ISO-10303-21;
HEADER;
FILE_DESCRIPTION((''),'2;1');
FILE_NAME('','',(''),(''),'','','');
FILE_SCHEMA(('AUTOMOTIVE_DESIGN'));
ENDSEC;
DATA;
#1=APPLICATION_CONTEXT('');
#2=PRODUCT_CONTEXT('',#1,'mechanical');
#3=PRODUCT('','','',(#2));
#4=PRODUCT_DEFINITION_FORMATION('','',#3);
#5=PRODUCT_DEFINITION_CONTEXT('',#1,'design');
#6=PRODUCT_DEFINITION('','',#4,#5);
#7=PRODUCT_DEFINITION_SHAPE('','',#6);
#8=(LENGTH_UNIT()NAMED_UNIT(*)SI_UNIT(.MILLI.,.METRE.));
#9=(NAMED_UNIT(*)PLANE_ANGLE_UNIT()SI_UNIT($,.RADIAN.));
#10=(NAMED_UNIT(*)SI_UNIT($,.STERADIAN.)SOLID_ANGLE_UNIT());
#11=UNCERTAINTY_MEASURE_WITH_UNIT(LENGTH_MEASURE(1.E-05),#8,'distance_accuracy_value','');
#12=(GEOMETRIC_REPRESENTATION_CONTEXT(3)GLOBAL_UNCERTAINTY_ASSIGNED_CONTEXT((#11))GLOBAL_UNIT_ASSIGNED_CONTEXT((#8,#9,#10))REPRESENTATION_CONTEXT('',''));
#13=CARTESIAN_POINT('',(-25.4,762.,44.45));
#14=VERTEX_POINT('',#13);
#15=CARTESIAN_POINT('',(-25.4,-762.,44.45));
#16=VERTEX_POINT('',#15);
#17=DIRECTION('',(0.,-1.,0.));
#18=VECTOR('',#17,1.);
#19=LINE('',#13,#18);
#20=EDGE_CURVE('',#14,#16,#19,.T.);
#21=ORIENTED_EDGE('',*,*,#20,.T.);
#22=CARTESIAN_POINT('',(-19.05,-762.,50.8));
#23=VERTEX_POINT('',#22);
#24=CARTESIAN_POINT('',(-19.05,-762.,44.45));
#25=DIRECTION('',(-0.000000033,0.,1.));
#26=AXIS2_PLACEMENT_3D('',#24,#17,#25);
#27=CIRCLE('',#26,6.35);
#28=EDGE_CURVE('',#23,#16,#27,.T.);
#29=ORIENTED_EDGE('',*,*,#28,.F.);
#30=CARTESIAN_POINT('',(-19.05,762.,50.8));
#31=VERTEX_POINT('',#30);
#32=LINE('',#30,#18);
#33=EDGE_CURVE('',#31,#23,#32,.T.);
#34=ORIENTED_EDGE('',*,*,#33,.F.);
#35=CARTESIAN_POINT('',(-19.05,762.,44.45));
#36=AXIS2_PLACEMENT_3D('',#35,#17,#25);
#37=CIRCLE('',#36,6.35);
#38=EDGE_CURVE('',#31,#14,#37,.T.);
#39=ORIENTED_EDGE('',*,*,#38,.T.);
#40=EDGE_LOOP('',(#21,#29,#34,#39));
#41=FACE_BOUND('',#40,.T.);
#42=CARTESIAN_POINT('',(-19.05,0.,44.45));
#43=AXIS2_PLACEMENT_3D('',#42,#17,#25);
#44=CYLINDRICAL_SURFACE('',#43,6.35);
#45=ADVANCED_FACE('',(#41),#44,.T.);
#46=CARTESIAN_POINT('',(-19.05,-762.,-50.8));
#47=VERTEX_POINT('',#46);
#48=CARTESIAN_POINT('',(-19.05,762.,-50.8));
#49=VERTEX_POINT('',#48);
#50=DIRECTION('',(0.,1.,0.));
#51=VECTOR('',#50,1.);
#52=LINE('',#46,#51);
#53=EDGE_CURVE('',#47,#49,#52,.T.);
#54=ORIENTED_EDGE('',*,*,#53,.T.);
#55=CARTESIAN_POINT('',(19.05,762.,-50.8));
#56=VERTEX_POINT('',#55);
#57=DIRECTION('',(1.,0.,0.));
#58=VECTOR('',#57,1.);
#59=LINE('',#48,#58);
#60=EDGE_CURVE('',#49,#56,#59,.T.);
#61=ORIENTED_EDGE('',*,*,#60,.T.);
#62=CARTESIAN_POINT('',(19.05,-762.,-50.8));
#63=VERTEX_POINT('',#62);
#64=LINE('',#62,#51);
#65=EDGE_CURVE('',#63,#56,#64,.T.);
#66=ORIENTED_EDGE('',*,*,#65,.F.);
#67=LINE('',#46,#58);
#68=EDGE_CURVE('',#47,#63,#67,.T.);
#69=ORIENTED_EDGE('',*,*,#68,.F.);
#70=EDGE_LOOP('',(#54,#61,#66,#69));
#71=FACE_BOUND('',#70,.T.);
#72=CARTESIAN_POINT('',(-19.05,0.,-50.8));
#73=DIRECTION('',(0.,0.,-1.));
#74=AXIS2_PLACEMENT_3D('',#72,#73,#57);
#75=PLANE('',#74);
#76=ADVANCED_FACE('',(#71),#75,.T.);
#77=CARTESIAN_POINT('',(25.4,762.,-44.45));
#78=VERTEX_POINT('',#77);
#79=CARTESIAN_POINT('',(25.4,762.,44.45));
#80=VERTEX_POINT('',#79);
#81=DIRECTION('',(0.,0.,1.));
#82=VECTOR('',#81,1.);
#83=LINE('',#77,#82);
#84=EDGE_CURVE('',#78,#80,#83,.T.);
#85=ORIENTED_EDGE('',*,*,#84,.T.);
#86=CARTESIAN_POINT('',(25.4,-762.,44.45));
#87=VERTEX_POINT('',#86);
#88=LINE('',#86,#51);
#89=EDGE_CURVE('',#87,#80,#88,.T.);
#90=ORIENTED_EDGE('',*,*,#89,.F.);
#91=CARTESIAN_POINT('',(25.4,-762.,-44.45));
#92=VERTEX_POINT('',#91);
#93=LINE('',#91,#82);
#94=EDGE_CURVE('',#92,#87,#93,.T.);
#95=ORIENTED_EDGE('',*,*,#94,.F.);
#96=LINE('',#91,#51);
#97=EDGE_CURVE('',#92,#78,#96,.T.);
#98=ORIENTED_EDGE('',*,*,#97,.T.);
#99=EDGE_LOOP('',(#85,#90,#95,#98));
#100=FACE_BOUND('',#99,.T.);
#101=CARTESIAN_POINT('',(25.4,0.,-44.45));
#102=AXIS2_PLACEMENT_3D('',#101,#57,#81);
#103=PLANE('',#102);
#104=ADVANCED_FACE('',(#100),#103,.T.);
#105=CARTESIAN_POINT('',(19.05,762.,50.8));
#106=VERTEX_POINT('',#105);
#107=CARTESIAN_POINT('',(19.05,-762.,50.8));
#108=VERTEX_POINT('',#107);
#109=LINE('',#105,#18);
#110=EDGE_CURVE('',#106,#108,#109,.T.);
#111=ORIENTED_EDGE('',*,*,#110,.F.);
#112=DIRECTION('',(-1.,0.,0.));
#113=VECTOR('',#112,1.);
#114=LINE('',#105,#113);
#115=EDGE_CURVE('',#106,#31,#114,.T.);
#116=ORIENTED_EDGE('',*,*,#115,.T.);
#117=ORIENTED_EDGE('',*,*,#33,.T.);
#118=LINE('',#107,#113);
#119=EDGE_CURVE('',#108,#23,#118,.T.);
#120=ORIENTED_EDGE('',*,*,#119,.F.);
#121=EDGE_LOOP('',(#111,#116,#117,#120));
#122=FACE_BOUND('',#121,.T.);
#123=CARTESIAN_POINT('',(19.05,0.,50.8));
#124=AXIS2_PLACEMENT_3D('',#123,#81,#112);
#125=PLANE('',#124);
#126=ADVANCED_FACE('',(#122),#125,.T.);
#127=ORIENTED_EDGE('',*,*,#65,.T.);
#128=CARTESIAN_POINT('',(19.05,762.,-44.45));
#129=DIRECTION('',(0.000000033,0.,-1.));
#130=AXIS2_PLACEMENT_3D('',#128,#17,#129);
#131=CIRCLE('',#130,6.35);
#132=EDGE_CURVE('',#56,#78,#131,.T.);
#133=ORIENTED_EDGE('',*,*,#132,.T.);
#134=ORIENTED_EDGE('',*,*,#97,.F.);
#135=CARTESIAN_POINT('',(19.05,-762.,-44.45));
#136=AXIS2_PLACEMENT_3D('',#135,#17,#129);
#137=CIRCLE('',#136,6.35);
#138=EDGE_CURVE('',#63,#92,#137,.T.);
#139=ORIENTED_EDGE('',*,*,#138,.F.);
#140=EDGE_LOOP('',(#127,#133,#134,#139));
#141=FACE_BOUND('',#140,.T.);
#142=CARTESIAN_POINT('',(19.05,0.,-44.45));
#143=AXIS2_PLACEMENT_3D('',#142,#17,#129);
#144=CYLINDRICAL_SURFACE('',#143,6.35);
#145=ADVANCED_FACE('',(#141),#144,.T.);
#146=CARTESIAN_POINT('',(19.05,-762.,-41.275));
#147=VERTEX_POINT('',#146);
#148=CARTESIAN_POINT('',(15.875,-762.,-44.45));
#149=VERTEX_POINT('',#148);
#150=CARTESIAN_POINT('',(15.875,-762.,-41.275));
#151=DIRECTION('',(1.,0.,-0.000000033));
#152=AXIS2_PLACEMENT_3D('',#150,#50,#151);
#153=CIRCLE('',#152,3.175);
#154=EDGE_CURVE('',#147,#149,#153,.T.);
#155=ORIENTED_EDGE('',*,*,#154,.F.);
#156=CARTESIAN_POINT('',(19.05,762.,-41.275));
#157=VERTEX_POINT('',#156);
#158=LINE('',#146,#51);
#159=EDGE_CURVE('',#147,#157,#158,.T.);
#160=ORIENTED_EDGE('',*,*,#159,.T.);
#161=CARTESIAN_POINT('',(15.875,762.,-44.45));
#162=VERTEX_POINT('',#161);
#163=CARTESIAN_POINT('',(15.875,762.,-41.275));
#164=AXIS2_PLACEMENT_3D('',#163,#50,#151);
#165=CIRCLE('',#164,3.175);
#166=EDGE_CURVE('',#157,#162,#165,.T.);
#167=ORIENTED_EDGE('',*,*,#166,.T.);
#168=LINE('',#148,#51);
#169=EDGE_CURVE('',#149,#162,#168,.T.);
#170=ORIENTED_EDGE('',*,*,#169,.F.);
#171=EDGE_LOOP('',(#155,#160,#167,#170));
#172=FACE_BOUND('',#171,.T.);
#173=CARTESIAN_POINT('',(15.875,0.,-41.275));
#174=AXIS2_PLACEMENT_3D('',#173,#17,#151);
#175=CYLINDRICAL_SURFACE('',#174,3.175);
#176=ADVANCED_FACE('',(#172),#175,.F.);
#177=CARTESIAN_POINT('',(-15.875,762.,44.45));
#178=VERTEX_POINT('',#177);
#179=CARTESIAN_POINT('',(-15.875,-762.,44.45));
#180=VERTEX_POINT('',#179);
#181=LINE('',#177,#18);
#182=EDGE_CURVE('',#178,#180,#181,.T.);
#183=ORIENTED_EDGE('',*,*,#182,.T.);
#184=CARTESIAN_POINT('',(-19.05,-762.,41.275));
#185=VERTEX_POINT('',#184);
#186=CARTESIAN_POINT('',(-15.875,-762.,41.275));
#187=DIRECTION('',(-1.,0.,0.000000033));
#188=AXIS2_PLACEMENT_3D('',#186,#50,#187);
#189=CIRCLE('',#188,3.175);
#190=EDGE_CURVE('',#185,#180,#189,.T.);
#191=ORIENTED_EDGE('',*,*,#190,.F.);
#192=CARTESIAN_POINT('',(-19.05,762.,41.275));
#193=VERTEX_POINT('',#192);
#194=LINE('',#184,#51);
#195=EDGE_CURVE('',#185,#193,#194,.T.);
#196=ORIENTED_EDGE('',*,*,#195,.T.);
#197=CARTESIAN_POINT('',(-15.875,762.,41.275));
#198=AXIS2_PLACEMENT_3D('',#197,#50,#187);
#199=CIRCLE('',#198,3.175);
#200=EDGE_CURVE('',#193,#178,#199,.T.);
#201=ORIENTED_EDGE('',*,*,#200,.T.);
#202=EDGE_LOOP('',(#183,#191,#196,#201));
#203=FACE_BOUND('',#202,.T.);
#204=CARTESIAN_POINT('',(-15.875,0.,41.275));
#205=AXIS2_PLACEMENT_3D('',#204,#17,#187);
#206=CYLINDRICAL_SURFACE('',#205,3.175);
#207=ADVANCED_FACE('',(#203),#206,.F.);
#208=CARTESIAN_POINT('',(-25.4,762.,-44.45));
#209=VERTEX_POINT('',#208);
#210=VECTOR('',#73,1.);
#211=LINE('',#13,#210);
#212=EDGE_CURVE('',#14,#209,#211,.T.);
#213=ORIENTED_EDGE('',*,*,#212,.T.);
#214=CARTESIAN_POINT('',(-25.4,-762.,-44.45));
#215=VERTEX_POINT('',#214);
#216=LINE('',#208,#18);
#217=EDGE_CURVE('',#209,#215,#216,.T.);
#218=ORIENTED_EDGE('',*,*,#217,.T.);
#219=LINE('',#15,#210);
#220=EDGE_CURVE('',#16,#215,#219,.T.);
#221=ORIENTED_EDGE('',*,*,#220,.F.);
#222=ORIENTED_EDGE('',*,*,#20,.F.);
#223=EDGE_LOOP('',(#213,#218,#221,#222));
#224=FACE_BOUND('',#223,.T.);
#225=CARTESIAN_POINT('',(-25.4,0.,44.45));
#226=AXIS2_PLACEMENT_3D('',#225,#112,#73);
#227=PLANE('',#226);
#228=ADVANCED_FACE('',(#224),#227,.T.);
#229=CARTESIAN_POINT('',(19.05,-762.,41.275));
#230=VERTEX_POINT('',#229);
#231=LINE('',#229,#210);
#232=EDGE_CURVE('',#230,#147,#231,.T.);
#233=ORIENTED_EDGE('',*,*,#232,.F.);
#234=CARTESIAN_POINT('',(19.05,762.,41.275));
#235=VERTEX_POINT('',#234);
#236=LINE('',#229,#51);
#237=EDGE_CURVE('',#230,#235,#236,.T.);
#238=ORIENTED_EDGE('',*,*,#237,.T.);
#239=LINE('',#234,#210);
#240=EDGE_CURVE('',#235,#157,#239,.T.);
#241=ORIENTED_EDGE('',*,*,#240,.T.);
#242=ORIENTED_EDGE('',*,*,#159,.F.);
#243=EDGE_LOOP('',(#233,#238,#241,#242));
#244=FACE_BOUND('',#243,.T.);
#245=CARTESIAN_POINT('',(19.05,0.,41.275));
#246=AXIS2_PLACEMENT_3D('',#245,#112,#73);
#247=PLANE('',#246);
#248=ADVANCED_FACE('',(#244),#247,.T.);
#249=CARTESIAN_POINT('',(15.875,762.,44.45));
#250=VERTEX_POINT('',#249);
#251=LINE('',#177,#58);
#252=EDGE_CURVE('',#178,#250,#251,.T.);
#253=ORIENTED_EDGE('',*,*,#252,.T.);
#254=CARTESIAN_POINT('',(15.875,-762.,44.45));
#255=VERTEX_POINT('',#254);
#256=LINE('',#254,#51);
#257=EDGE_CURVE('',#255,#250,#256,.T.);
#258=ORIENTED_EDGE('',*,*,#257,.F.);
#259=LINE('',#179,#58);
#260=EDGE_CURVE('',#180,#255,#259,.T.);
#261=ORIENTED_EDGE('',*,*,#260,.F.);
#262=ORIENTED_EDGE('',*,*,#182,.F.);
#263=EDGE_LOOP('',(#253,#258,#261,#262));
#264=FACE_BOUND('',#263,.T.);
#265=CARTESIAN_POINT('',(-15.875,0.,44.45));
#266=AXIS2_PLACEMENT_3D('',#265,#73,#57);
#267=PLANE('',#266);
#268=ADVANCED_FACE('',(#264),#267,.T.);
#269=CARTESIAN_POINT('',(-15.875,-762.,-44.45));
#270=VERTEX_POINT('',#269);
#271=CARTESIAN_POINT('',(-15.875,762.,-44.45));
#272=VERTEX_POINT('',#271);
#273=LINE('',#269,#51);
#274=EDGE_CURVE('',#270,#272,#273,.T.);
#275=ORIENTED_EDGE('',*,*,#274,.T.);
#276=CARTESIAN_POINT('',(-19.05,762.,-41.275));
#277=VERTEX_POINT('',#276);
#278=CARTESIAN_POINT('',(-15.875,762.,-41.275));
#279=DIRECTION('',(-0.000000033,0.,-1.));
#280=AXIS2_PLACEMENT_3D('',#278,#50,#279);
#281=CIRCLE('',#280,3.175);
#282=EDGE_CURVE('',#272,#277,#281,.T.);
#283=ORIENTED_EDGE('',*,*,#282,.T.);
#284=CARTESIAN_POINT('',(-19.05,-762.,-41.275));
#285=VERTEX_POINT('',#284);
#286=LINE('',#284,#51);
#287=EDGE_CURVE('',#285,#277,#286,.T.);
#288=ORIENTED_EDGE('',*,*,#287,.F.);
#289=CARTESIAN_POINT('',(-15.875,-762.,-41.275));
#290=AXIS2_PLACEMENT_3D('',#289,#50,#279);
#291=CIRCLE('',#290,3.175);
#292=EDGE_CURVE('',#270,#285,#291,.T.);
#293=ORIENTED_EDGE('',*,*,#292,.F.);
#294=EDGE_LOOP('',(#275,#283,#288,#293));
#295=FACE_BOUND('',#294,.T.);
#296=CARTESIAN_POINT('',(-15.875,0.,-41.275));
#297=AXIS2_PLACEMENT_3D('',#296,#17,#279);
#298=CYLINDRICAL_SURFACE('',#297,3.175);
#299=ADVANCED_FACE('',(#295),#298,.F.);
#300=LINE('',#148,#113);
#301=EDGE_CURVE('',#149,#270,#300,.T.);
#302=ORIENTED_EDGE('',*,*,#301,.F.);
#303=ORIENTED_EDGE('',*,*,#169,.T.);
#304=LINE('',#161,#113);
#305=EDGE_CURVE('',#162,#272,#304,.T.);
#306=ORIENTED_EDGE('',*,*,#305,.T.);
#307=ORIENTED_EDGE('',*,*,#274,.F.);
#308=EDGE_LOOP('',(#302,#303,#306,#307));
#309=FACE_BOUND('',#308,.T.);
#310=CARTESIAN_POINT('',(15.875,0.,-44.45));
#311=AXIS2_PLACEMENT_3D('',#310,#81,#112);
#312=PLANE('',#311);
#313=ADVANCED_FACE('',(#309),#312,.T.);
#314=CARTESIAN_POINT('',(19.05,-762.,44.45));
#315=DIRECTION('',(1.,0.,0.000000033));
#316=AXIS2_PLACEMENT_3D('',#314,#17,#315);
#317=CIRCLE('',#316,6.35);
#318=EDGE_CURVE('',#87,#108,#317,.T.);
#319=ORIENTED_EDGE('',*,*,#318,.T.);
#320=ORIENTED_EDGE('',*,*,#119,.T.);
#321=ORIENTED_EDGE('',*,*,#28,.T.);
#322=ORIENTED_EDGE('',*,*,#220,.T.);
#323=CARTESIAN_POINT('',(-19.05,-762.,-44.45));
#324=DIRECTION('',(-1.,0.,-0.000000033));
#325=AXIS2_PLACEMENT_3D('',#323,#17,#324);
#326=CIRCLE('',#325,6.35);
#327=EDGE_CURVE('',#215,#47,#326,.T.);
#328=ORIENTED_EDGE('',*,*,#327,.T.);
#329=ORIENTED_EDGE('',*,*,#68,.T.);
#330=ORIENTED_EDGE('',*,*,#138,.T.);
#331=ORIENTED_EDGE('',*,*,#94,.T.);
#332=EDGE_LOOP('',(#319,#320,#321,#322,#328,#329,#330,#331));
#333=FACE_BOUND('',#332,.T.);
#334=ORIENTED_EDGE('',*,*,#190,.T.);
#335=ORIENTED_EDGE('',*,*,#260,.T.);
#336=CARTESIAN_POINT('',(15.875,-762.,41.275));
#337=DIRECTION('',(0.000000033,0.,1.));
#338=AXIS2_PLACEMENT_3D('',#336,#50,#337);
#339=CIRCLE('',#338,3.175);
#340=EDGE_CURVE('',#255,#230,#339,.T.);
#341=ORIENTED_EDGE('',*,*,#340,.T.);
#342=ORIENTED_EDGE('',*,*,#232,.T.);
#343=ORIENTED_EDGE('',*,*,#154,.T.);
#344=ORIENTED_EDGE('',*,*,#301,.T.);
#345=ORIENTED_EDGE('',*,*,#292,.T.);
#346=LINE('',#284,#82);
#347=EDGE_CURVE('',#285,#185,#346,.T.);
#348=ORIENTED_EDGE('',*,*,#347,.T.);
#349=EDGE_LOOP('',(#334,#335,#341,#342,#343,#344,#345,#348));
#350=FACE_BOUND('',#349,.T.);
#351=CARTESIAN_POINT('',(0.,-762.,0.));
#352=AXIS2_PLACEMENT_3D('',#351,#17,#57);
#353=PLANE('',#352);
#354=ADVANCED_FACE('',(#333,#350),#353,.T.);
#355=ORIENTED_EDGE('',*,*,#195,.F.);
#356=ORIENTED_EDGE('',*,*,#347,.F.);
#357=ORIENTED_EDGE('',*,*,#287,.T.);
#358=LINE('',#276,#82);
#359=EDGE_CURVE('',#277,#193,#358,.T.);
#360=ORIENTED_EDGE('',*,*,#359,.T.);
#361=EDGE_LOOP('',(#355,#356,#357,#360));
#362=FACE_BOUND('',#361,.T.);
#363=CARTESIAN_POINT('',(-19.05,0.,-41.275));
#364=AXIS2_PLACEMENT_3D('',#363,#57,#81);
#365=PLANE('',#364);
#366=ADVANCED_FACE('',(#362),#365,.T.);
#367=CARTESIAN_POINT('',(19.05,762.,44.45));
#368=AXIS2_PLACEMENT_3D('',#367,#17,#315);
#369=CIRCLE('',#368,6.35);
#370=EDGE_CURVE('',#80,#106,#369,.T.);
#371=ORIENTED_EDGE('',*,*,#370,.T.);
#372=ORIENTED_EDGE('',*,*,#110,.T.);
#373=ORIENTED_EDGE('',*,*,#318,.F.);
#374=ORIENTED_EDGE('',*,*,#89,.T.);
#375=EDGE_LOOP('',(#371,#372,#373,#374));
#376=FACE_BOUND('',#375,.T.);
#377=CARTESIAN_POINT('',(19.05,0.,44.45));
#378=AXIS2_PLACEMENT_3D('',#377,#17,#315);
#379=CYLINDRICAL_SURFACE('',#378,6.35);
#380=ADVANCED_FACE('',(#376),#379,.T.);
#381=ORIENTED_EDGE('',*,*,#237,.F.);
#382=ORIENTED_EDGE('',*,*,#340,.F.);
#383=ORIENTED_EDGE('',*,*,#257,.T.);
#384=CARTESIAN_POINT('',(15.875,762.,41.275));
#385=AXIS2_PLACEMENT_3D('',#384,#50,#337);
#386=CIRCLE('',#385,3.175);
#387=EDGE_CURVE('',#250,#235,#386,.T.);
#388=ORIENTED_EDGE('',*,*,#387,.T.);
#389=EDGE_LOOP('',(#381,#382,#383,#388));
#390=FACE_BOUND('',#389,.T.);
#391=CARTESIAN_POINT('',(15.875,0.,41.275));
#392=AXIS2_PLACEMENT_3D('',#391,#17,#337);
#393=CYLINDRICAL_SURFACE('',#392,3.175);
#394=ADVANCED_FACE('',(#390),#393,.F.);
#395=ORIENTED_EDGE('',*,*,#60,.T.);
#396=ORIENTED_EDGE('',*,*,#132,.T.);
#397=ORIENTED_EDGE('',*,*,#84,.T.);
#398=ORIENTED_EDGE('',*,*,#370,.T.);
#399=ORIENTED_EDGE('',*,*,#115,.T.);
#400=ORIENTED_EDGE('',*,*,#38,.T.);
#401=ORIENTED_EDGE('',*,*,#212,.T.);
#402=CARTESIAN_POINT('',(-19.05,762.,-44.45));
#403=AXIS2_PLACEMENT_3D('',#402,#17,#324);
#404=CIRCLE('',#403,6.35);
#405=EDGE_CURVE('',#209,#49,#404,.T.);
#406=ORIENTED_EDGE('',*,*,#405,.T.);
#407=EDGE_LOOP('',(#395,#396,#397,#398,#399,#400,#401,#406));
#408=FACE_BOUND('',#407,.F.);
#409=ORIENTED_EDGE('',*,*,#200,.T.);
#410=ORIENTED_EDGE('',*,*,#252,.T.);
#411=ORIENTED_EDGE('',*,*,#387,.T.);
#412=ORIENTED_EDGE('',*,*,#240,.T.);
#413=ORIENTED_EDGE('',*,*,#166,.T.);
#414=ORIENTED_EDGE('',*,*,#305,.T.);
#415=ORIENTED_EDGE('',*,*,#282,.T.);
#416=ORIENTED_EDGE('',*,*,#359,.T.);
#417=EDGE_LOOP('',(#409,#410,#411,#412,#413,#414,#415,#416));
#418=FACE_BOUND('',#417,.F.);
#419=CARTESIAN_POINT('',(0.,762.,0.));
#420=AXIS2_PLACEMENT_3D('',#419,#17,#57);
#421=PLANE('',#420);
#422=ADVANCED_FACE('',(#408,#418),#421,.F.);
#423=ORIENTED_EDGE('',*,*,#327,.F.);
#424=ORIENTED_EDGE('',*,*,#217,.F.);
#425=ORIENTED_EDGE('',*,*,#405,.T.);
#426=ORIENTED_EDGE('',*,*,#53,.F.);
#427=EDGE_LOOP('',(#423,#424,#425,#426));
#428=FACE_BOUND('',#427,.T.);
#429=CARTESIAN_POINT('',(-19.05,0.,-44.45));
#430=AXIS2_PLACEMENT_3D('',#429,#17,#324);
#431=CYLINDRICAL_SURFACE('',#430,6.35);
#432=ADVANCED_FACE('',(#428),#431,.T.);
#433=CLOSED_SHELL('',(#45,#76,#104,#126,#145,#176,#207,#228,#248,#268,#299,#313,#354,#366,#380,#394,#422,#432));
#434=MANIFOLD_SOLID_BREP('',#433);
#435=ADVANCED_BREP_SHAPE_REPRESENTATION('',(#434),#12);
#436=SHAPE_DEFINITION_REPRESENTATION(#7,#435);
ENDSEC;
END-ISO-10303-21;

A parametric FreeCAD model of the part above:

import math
import FreeCAD as App
import Part
import Sketcher

V = App.Vector
Q = App.Units.Quantity

doc = App.newDocument("Part")
params = doc.addObject("Spreadsheet::Sheet", "Params")
for row, (alias, value) in enumerate([
    ("sketch1_radius", "0.25 in"),
    ("sketch1_width", "1.5 in"),
    ("sketch1_height", "3.5 in"),
    ("sketch1_radius2", "0.125 in"),
    ("pad1_length", "60 in"),
], start=1):
    params.set(f"A{row}", alias)
    params.set(f"B{row}", "=" + value)
    params.setAlias(f"B{row}", alias)

body = doc.addObject("PartDesign::Body", "Body")

# Sketch on XZ plane
sketch1 = body.newObject("Sketcher::SketchObject", "Sketch")
sketch1.AttachmentSupport = (doc.getObject("XZ_Plane"), [""])
sketch1.MapMode = "FlatFace"
sketch1.addGeometry(Part.ArcOfCircle(Part.Circle(V(19, 44.4, 0), V(0, 0, 1), 6.4), math.radians(0), math.radians(90)), False)
sketch1.addGeometry(Part.LineSegment(V(19.1, 50.8, 0), V(-19.1, 50.8, 0)), False)
sketch1.addGeometry(Part.ArcOfCircle(Part.Circle(V(-19, 44.4, 0), V(0, 0, 1), 6.4), math.radians(90), math.radians(180)), False)
sketch1.addGeometry(Part.LineSegment(V(-25.4, 44.5, 0), V(-25.4, -44.5, 0)), False)
sketch1.addGeometry(Part.ArcOfCircle(Part.Circle(V(-19, -44.4, 0), V(0, 0, 1), 6.4), math.radians(-180), math.radians(-90)), False)
sketch1.addGeometry(Part.LineSegment(V(-19.1, -50.8, 0), V(19.1, -50.8, 0)), False)
sketch1.addGeometry(Part.ArcOfCircle(Part.Circle(V(19, -44.4, 0), V(0, 0, 1), 6.4), math.radians(-90), math.radians(0)), False)
sketch1.addGeometry(Part.LineSegment(V(25.4, -44.5, 0), V(25.4, 44.5, 0)), False)
sketch1.addGeometry(Part.ArcOfCircle(Part.Circle(V(-15.9, 41.3, 0), V(0, 0, 1), 3.2), math.radians(90), math.radians(180)), False)
sketch1.addGeometry(Part.LineSegment(V(-15.9, 44.5, 0), V(15.9, 44.5, 0)), False)
sketch1.addGeometry(Part.ArcOfCircle(Part.Circle(V(15.9, 41.3, 0), V(0, 0, 1), 3.2), math.radians(0), math.radians(90)), False)
sketch1.addGeometry(Part.LineSegment(V(19.1, 41.3, 0), V(19.1, -41.3, 0)), False)
sketch1.addGeometry(Part.ArcOfCircle(Part.Circle(V(15.9, -41.3, 0), V(0, 0, 1), 3.2), math.radians(-90), math.radians(0)), False)
sketch1.addGeometry(Part.LineSegment(V(15.9, -44.5, 0), V(-15.9, -44.5, 0)), False)
sketch1.addGeometry(Part.ArcOfCircle(Part.Circle(V(-15.9, -41.3, 0), V(0, 0, 1), 3.2), math.radians(-180), math.radians(-90)), False)
sketch1.addGeometry(Part.LineSegment(V(-19.1, -41.3, 0), V(-19.1, 41.3, 0)), False)
sketch1.addConstraint(Sketcher.Constraint("Tangent", 0, 2, 1, 1))
sketch1.addConstraint(Sketcher.Constraint("Tangent", 1, 2, 2, 1))
sketch1.addConstraint(Sketcher.Constraint("Tangent", 2, 2, 3, 1))
sketch1.addConstraint(Sketcher.Constraint("Tangent", 3, 2, 4, 1))
sketch1.addConstraint(Sketcher.Constraint("Tangent", 4, 2, 5, 1))
sketch1.addConstraint(Sketcher.Constraint("Tangent", 5, 2, 6, 1))
sketch1.addConstraint(Sketcher.Constraint("Tangent", 6, 2, 7, 1))
sketch1.addConstraint(Sketcher.Constraint("Tangent", 7, 2, 0, 1))
sketch1.addConstraint(Sketcher.Constraint("Tangent", 8, 1, 9, 1))
sketch1.addConstraint(Sketcher.Constraint("Tangent", 9, 2, 10, 2))
sketch1.addConstraint(Sketcher.Constraint("Tangent", 10, 1, 11, 1))
sketch1.addConstraint(Sketcher.Constraint("Tangent", 11, 2, 12, 2))
sketch1.addConstraint(Sketcher.Constraint("Tangent", 12, 1, 13, 1))
sketch1.addConstraint(Sketcher.Constraint("Tangent", 13, 2, 14, 2))
sketch1.addConstraint(Sketcher.Constraint("Tangent", 14, 1, 15, 1))
sketch1.addConstraint(Sketcher.Constraint("Tangent", 15, 2, 8, 2))
sketch1.addConstraint(Sketcher.Constraint("Horizontal", 1))
sketch1.addConstraint(Sketcher.Constraint("Vertical", 3))
sketch1.addConstraint(Sketcher.Constraint("Horizontal", 5))
sketch1.addConstraint(Sketcher.Constraint("Vertical", 7))
sketch1.addConstraint(Sketcher.Constraint("Horizontal", 9))
sketch1.addConstraint(Sketcher.Constraint("Vertical", 11))
sketch1.addConstraint(Sketcher.Constraint("Horizontal", 13))
sketch1.addConstraint(Sketcher.Constraint("Vertical", 15))
sketch1.addConstraint(Sketcher.Constraint("Equal", 0, 2))
sketch1.addConstraint(Sketcher.Constraint("Equal", 2, 4))
sketch1.addConstraint(Sketcher.Constraint("Equal", 4, 6))
sketch1.addConstraint(Sketcher.Constraint("Equal", 8, 10))
sketch1.addConstraint(Sketcher.Constraint("Equal", 10, 12))
sketch1.addConstraint(Sketcher.Constraint("Equal", 12, 14))
sketch1.addConstraint(Sketcher.Constraint("Symmetric", 0, 3, 4, 3, -1, 1))
sketch1.addConstraint(Sketcher.Constraint("Symmetric", 8, 3, 12, 3, -1, 1))
sketch1.addConstraint(Sketcher.Constraint("Horizontal", 7, 2, 8, 1))
sketch1.addConstraint(Sketcher.Constraint("Vertical", 5, 2, 10, 1))
sketch1.addConstraint(Sketcher.Constraint("Radius", 0, Q("0.25 in")))
sketch1.addConstraint(Sketcher.Constraint("DistanceX", 1, 2, 1, 1, Q("1.5 in")))
sketch1.addConstraint(Sketcher.Constraint("DistanceY", 3, 2, 3, 1, Q("3.5 in")))
sketch1.addConstraint(Sketcher.Constraint("Radius", 8, Q("0.125 in")))
sketch1.setExpression("Constraints[34]", "Params.sketch1_radius")
sketch1.setExpression("Constraints[35]", "Params.sketch1_width")
sketch1.setExpression("Constraints[36]", "Params.sketch1_height")
sketch1.setExpression("Constraints[37]", "Params.sketch1_radius2")
pad1 = body.newObject("PartDesign::Pad", "Pad")
pad1.Profile = sketch1
pad1.setExpression("Length", "Params.pad1_length")
pad1.Midplane = True

doc.recompute()
